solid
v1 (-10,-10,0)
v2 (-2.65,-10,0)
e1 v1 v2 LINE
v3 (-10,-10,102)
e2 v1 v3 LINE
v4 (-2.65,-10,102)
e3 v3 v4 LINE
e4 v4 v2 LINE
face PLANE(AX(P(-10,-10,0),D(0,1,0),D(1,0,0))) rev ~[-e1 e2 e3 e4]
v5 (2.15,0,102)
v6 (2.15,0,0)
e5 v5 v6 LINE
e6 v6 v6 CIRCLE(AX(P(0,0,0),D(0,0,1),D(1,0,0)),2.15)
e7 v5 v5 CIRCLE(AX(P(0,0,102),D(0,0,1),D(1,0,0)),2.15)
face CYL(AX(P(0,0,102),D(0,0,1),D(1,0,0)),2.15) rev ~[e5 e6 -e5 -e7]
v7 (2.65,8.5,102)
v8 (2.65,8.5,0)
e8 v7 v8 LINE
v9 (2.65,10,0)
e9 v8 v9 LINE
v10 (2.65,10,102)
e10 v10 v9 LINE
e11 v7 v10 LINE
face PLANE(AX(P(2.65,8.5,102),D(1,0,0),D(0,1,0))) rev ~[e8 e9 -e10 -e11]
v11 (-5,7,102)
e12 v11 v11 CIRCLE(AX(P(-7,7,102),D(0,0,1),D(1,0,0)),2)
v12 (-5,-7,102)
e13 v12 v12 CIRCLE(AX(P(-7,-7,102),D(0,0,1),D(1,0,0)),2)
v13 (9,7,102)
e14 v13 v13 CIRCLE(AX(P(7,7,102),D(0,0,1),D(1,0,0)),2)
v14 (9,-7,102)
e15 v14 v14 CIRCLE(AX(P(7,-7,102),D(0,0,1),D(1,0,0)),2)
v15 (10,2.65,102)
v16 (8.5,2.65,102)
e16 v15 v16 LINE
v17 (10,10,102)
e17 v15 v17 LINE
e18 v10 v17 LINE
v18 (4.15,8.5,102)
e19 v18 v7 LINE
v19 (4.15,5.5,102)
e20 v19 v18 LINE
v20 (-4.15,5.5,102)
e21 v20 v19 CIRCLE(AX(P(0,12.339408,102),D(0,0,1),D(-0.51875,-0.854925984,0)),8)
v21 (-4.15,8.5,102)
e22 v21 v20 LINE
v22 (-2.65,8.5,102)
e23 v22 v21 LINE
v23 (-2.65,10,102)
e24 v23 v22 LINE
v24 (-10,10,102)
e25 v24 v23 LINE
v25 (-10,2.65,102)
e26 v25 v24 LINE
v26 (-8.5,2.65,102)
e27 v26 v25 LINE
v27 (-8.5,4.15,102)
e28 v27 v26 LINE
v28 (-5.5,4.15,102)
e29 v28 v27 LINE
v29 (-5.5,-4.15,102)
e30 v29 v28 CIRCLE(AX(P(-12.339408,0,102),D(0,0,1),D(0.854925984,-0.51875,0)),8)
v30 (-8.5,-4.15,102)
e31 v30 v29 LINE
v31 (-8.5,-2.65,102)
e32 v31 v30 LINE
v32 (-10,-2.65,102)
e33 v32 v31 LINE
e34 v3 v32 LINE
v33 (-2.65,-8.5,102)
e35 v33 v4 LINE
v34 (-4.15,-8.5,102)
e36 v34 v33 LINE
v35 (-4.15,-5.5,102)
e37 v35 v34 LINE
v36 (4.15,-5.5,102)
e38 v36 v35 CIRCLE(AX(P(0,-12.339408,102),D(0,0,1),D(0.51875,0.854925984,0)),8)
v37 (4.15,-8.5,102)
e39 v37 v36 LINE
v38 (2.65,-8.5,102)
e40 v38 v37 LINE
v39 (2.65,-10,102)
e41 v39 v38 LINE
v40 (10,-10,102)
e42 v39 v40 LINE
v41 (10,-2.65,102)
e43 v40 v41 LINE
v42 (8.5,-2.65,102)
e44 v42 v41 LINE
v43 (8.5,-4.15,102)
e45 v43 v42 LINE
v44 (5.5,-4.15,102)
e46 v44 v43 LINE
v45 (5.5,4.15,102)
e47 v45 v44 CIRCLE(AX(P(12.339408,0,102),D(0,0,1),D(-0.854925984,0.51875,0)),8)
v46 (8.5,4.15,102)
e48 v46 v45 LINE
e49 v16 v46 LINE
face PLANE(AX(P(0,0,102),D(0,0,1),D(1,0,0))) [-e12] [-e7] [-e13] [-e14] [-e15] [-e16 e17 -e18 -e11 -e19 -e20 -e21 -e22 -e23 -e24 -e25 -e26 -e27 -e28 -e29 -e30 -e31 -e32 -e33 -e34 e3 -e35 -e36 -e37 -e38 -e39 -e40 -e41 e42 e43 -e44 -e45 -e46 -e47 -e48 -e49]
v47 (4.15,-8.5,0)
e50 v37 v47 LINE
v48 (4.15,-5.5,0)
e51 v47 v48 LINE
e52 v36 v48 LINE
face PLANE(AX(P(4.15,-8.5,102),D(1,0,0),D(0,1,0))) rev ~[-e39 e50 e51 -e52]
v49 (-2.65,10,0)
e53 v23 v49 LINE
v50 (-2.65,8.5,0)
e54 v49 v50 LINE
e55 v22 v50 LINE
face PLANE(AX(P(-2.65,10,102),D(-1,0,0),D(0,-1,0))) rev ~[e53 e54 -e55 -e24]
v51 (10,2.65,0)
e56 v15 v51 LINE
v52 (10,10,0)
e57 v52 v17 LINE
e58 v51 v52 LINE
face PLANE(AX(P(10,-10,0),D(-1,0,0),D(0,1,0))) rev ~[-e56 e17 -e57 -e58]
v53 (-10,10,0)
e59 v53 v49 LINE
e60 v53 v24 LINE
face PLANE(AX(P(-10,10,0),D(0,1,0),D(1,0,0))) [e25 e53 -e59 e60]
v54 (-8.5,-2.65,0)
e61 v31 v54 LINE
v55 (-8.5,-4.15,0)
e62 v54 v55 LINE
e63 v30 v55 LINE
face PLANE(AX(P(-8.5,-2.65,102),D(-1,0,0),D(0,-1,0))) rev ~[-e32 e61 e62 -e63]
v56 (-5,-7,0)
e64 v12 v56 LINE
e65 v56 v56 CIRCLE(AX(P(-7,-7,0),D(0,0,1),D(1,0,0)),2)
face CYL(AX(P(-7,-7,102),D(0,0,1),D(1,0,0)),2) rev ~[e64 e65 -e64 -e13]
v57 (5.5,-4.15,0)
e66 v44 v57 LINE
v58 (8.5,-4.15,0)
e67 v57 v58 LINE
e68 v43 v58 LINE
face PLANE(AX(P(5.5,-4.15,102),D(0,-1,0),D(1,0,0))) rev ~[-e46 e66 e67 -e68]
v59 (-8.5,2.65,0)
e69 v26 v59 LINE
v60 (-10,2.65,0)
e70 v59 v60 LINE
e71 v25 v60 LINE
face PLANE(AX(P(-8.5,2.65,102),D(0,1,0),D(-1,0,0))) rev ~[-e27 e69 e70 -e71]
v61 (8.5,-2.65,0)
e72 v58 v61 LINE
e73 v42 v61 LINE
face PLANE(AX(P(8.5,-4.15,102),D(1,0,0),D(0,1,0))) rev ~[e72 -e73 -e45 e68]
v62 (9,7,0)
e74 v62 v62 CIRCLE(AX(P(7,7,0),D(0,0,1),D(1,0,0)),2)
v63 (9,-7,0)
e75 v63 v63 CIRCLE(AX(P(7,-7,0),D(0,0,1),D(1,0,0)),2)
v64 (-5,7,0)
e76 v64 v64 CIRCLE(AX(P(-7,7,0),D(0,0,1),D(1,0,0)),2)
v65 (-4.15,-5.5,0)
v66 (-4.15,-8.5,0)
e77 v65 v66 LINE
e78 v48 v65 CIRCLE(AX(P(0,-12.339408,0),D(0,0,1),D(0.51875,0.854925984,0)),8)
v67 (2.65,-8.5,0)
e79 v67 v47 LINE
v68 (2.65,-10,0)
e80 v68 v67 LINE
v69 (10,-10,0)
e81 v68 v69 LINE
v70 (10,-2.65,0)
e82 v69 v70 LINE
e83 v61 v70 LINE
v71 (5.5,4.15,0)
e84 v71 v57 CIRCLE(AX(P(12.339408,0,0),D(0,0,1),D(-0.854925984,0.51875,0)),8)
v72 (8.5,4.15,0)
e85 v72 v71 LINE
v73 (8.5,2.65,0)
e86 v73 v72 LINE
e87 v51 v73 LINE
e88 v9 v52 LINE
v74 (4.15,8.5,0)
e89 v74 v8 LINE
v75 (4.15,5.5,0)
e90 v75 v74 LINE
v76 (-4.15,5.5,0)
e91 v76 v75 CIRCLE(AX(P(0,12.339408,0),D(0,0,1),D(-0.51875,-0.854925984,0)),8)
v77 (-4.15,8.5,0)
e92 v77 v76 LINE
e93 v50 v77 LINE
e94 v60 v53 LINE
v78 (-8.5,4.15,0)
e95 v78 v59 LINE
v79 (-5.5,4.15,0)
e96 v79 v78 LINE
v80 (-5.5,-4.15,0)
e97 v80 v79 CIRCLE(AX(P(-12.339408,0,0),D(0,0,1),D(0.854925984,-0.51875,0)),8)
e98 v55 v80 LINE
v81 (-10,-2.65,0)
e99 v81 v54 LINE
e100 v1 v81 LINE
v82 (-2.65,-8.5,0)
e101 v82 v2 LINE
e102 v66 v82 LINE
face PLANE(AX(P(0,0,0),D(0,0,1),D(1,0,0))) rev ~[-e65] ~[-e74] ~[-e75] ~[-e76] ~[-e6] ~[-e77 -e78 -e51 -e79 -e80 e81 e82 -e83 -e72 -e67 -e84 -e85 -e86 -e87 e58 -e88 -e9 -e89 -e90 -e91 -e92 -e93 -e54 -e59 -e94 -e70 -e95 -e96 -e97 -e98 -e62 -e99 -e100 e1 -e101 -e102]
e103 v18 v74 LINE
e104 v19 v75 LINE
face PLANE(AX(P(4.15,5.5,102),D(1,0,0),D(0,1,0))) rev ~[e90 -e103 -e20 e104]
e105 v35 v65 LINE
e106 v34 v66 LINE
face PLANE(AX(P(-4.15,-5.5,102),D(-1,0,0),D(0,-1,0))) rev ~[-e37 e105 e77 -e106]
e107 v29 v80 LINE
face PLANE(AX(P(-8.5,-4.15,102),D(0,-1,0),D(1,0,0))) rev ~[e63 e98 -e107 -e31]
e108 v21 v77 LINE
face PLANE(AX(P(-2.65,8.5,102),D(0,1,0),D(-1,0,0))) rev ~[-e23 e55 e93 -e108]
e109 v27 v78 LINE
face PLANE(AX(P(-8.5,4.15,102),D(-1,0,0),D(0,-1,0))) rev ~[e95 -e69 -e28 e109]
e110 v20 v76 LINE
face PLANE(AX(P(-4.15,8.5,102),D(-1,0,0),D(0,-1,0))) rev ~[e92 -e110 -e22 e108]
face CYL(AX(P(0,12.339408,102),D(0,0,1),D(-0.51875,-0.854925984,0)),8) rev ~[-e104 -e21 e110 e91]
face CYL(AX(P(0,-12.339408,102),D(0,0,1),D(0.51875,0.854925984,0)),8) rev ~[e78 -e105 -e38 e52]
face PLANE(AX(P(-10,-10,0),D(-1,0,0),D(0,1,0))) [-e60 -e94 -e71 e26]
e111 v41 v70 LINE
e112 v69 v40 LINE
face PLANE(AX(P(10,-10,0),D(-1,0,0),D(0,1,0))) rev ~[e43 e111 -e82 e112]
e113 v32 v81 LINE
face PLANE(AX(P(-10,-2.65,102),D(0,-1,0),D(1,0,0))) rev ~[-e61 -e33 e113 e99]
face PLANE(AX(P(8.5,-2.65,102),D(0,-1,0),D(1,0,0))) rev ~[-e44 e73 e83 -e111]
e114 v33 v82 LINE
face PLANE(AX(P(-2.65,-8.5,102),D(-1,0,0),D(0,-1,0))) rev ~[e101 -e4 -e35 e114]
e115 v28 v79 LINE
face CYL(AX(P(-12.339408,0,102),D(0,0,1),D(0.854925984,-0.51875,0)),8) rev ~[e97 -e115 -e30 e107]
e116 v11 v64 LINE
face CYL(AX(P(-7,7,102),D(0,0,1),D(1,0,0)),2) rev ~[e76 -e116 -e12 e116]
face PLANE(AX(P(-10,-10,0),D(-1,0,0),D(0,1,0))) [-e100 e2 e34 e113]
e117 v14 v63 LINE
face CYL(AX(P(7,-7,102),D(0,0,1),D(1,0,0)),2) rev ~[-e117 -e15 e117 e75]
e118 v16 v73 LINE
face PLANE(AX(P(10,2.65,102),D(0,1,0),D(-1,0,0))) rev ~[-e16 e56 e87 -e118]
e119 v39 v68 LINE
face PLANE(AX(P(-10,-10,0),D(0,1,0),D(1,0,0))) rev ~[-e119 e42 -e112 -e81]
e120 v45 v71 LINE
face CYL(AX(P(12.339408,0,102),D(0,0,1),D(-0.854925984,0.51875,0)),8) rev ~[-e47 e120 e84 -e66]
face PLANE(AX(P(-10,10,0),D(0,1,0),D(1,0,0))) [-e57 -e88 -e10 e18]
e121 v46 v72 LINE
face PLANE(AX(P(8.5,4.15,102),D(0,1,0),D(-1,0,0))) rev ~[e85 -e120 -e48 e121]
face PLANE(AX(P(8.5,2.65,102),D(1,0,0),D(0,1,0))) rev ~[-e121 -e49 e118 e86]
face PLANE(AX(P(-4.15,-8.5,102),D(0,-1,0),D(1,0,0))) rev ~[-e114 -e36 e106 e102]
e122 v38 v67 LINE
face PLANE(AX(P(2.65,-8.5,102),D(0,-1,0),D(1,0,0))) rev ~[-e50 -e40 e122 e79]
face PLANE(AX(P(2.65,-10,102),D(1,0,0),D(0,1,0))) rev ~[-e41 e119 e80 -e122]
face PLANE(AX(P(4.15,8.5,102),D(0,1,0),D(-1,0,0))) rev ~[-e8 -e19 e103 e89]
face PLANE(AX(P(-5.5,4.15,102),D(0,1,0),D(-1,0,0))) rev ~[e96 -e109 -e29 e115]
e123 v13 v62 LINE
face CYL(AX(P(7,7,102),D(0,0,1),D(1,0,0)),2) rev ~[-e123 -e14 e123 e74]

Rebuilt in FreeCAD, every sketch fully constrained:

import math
import FreeCAD as App
import Part
import Sketcher
from FreeCAD import Vector


def add_polygon(sketch, points):
    """Adds a closed chain of lines whose ends are joined by coincident constraints."""
    first, n = sketch.GeometryCount, len(points)
    for a, b in zip(points, points[1:] + points[:1]):
        sketch.addGeometry(Part.LineSegment(App.Vector(*a, 0), App.Vector(*b, 0)), False)
    for i in range(n):
        sketch.addConstraint(Sketcher.Constraint("Coincident", first + i, 2, first + (i + 1) % n, 1))

doc = App.newDocument("Part")
body = doc.addObject("PartDesign::Body", "Body")

# Sketch on XY plane
sketch1 = body.newObject("Sketcher::SketchObject", "Sketch")
sketch1.AttachmentSupport = (doc.getObject("XY_Plane"), [""])
sketch1.MapMode = "FlatFace"
add_polygon(sketch1, [(-10, 10), (-10, -10), (10, -10), (10, 10)])  # lines 0-3
sketch1.addConstraint([
    Sketcher.Constraint("Vertical", 0),
    Sketcher.Constraint("Horizontal", 1),
    Sketcher.Constraint("Vertical", 2),
    Sketcher.Constraint("Horizontal", 3),
    Sketcher.Constraint("Symmetric", 0, 2, 2, 2, -1, 1),
    Sketcher.Constraint("Equal", 3, 0),
    Sketcher.Constraint("DistanceX", 1, 1, 1, 2, 20.0),
])
pad1 = body.newObject("PartDesign::Pad", "Pad")
pad1.Profile = sketch1
pad1.Length = 102

# Sketch on XY plane
sketch2 = body.newObject("Sketcher::SketchObject", "Sketch001")
sketch2.AttachmentSupport = (doc.getObject("XY_Plane"), [""])
sketch2.MapMode = "FlatFace"
sketch2.AttachmentOffset = App.Placement(Vector(0, 0, 102), App.Rotation())
sketch2.addGeometry([
    Part.Circle(Vector(0, 0, 0), Vector(0, 0, 1), 2.15),  # 0
    Part.Circle(Vector(-7, 7, 0), Vector(0, 0, 1), 2),  # 1
    Part.Circle(Vector(7, 7, 0), Vector(0, 0, 1), 2),  # 2
    Part.Circle(Vector(7, -7, 0), Vector(0, 0, 1), 2),  # 3
    Part.Circle(Vector(-7, -7, 0), Vector(0, 0, 1), 2),  # 4
    Part.LineSegment(Vector(-2.65, 10, 0), Vector(-2.65, 8.5, 0)),  # 5
    Part.LineSegment(Vector(-2.65, 8.5, 0), Vector(-4.15, 8.5, 0)),  # 6
    Part.LineSegment(Vector(-4.15, 8.5, 0), Vector(-4.15, 5.5, 0)),  # 7
    Part.ArcOfCircle(Part.Circle(Vector(0, 12.339408, 0), Vector(0, 0, 1), 8), math.radians(-121.248441), math.radians(-58.751559)),  # 8
    Part.LineSegment(Vector(4.15, 5.5, 0), Vector(4.15, 8.5, 0)),  # 9
    Part.LineSegment(Vector(4.15, 8.5, 0), Vector(2.65, 8.5, 0)),  # 10
    Part.LineSegment(Vector(2.65, 8.5, 0), Vector(2.65, 10, 0)),  # 11
    Part.LineSegment(Vector(2.65, 10, 0), Vector(-2.65, 10, 0)),  # 12
    Part.LineSegment(Vector(10, 2.65, 0), Vector(8.5, 2.65, 0)),  # 13
    Part.LineSegment(Vector(8.5, 2.65, 0), Vector(8.5, 4.15, 0)),  # 14
    Part.LineSegment(Vector(8.5, 4.15, 0), Vector(5.5, 4.15, 0)),  # 15
    Part.ArcOfCircle(Part.Circle(Vector(12.339408, 0, 0), Vector(0, 0, 1), 8), math.radians(148.751559), math.radians(211.248441)),  # 16
    Part.LineSegment(Vector(5.5, -4.15, 0), Vector(8.5, -4.15, 0)),  # 17
    Part.LineSegment(Vector(8.5, -4.15, 0), Vector(8.5, -2.65, 0)),  # 18
    Part.LineSegment(Vector(8.5, -2.65, 0), Vector(10, -2.65, 0)),  # 19
    Part.LineSegment(Vector(10, -2.65, 0), Vector(10, 2.65, 0)),  # 20
    Part.LineSegment(Vector(2.65, -10, 0), Vector(2.65, -8.5, 0)),  # 21
    Part.LineSegment(Vector(2.65, -8.5, 0), Vector(4.15, -8.5, 0)),  # 22
    Part.LineSegment(Vector(4.15, -8.5, 0), Vector(4.15, -5.5, 0)),  # 23
    Part.ArcOfCircle(Part.Circle(Vector(0, -12.339408, 0), Vector(0, 0, 1), 8), math.radians(58.751559), math.radians(121.248441)),  # 24
    Part.LineSegment(Vector(-4.15, -5.5, 0), Vector(-4.15, -8.5, 0)),  # 25
    Part.LineSegment(Vector(-4.15, -8.5, 0), Vector(-2.65, -8.5, 0)),  # 26
    Part.LineSegment(Vector(-2.65, -8.5, 0), Vector(-2.65, -10, 0)),  # 27
    Part.LineSegment(Vector(-2.65, -10, 0), Vector(2.65, -10, 0)),  # 28
    Part.LineSegment(Vector(-10, -2.65, 0), Vector(-8.5, -2.65, 0)),  # 29
    Part.LineSegment(Vector(-8.5, -2.65, 0), Vector(-8.5, -4.15, 0)),  # 30
    Part.LineSegment(Vector(-8.5, -4.15, 0), Vector(-5.5, -4.15, 0)),  # 31
    Part.ArcOfCircle(Part.Circle(Vector(-12.339408, 0, 0), Vector(0, 0, 1), 8), math.radians(-31.248441), math.radians(31.248441)),  # 32
    Part.LineSegment(Vector(-5.5, 4.15, 0), Vector(-8.5, 4.15, 0)),  # 33
    Part.LineSegment(Vector(-8.5, 4.15, 0), Vector(-8.5, 2.65, 0)),  # 34
    Part.LineSegment(Vector(-8.5, 2.65, 0), Vector(-10, 2.65, 0)),  # 35
    Part.LineSegment(Vector(-10, 2.65, 0), Vector(-10, -2.65, 0)),  # 36
], False)
sketch2.addConstraint([
    Sketcher.Constraint("Coincident", 5, 2, 6, 1),
    Sketcher.Constraint("Coincident", 6, 2, 7, 1),
    Sketcher.Constraint("Coincident", 7, 2, 8, 1),
    Sketcher.Constraint("Coincident", 8, 2, 9, 1),
    Sketcher.Constraint("Coincident", 9, 2, 10, 1),
    Sketcher.Constraint("Coincident", 10, 2, 11, 1),
    Sketcher.Constraint("Coincident", 11, 2, 12, 1),
    Sketcher.Constraint("Coincident", 12, 2, 5, 1),
    Sketcher.Constraint("Coincident", 13, 2, 14, 1),
    Sketcher.Constraint("Coincident", 14, 2, 15, 1),
    Sketcher.Constraint("Coincident", 15, 2, 16, 1),
    Sketcher.Constraint("Coincident", 16, 2, 17, 1),
    Sketcher.Constraint("Coincident", 17, 2, 18, 1),
    Sketcher.Constraint("Coincident", 18, 2, 19, 1),
    Sketcher.Constraint("Coincident", 19, 2, 20, 1),
    Sketcher.Constraint("Coincident", 20, 2, 13, 1),
    Sketcher.Constraint("Coincident", 21, 2, 22, 1),
    Sketcher.Constraint("Coincident", 22, 2, 23, 1),
    Sketcher.Constraint("Coincident", 23, 2, 24, 1),
    Sketcher.Constraint("Coincident", 24, 2, 25, 1),
    Sketcher.Constraint("Coincident", 25, 2, 26, 1),
    Sketcher.Constraint("Coincident", 26, 2, 27, 1),
    Sketcher.Constraint("Coincident", 27, 2, 28, 1),
    Sketcher.Constraint("Coincident", 28, 2, 21, 1),
    Sketcher.Constraint("Coincident", 29, 2, 30, 1),
    Sketcher.Constraint("Coincident", 30, 2, 31, 1),
    Sketcher.Constraint("Coincident", 31, 2, 32, 1),
    Sketcher.Constraint("Coincident", 32, 2, 33, 1),
    Sketcher.Constraint("Coincident", 33, 2, 34, 1),
    Sketcher.Constraint("Coincident", 34, 2, 35, 1),
    Sketcher.Constraint("Coincident", 35, 2, 36, 1),
    Sketcher.Constraint("Coincident", 36, 2, 29, 1),
    Sketcher.Constraint("Vertical", 5),
    Sketcher.Constraint("Horizontal", 6),
    Sketcher.Constraint("Vertical", 7),
    Sketcher.Constraint("Vertical", 9),
    Sketcher.Constraint("Horizontal", 10),
    Sketcher.Constraint("Vertical", 11),
    Sketcher.Constraint("Horizontal", 12),
    Sketcher.Constraint("Horizontal", 13),
    Sketcher.Constraint("Vertical", 14),
    Sketcher.Constraint("Horizontal", 15),
    Sketcher.Constraint("Horizontal", 17),
    Sketcher.Constraint("Vertical", 18),
    Sketcher.Constraint("Horizontal", 19),
    Sketcher.Constraint("Vertical", 20),
    Sketcher.Constraint("Vertical", 21),
    Sketcher.Constraint("Horizontal", 22),
    Sketcher.Constraint("Vertical", 23),
    Sketcher.Constraint("Vertical", 25),
    Sketcher.Constraint("Horizontal", 26),
    Sketcher.Constraint("Vertical", 27),
    Sketcher.Constraint("Horizontal", 28),
    Sketcher.Constraint("Horizontal", 29),
    Sketcher.Constraint("Vertical", 30),
    Sketcher.Constraint("Horizontal", 31),
    Sketcher.Constraint("Horizontal", 33),
    Sketcher.Constraint("Vertical", 34),
    Sketcher.Constraint("Horizontal", 35),
    Sketcher.Constraint("Vertical", 36),
    Sketcher.Constraint("Coincident", 0, 3, -1, 1),
    Sketcher.Constraint("Equal", 1, 2),
    Sketcher.Constraint("Equal", 2, 3),
    Sketcher.Constraint("Equal", 3, 4),
    Sketcher.Constraint("Equal", 8, 16),
    Sketcher.Constraint("Equal", 16, 24),
    Sketcher.Constraint("Equal", 24, 32),
    Sketcher.Constraint("Symmetric", 1, 3, 3, 3, -1, 1),
    Sketcher.Constraint("Symmetric", 2, 3, 4, 3, -1, 1),
    Sketcher.Constraint("Symmetric", 8, 3, 24, 3, -1, 1),
    Sketcher.Constraint("Symmetric", 16, 3, 32, 3, -1, 1),
    Sketcher.Constraint("Symmetric", 5, 2, 21, 2, -1, 1),
    Sketcher.Constraint("Symmetric", 9, 2, 25, 2, -1, 1),
    Sketcher.Constraint("Symmetric", 11, 2, 27, 2, -1, 1),
    Sketcher.Constraint("Symmetric", 13, 2, 29, 2, -1, 1),
    Sketcher.Constraint("Symmetric", 17, 2, 33, 2, -1, 1),
    Sketcher.Constraint("Symmetric", 19, 2, 35, 2, -1, 1),
    Sketcher.Constraint("Symmetric", 1, 3, 2, 3, -2),
    Sketcher.Constraint("Symmetric", 7, 2, 8, 2, -2),
    Sketcher.Constraint("Symmetric", 5, 2, 10, 2, -2),
    Sketcher.Constraint("Symmetric", 18, 2, 29, 2, -2),
    Sketcher.Constraint("Symmetric", 16, 2, 31, 2, -2),
    Sketcher.Constraint("Horizontal", 23, 2, 24, 2),
    Sketcher.Constraint("Horizontal", 15, 2, 32, 2),
    Sketcher.Constraint("Equal", 10, 13),
    Sketcher.Constraint("Equal", 35, 5),
    Sketcher.Constraint("Equal", 33, 7),
    Sketcher.Constraint("Equal", 11, 14),
    Sketcher.Constraint("Equal", 28, 20),
    Sketcher.Constraint("Diameter", 1, 4.0),
    Sketcher.Constraint("Radius", 8, 8.0),
    Sketcher.Constraint("Diameter", 0, 4.3),
    Sketcher.Constraint("DistanceX", 15, 2, 15, 1, 3.0),
    Sketcher.Constraint("DistanceX", 6, 2, 6, 1, 1.5),
    Sketcher.Constraint("DistanceX", 12, 2, 12, 1, 5.3),
    Sketcher.Constraint("DistanceX", 1, 3, -1, 1, 7.0),
    Sketcher.Constraint("DistanceY", -1, 1, 1, 3, 7.0),
    Sketcher.Constraint("DistanceY", -1, 1, 11, 2, 10.0),
    Sketcher.Constraint("DistanceX", -1, 1, 19, 2, 10.0),
])
pocket1 = body.newObject("PartDesign::Pocket", "Pocket")
pocket1.Profile = sketch2
pocket1.Length = 300

doc.recompute()
